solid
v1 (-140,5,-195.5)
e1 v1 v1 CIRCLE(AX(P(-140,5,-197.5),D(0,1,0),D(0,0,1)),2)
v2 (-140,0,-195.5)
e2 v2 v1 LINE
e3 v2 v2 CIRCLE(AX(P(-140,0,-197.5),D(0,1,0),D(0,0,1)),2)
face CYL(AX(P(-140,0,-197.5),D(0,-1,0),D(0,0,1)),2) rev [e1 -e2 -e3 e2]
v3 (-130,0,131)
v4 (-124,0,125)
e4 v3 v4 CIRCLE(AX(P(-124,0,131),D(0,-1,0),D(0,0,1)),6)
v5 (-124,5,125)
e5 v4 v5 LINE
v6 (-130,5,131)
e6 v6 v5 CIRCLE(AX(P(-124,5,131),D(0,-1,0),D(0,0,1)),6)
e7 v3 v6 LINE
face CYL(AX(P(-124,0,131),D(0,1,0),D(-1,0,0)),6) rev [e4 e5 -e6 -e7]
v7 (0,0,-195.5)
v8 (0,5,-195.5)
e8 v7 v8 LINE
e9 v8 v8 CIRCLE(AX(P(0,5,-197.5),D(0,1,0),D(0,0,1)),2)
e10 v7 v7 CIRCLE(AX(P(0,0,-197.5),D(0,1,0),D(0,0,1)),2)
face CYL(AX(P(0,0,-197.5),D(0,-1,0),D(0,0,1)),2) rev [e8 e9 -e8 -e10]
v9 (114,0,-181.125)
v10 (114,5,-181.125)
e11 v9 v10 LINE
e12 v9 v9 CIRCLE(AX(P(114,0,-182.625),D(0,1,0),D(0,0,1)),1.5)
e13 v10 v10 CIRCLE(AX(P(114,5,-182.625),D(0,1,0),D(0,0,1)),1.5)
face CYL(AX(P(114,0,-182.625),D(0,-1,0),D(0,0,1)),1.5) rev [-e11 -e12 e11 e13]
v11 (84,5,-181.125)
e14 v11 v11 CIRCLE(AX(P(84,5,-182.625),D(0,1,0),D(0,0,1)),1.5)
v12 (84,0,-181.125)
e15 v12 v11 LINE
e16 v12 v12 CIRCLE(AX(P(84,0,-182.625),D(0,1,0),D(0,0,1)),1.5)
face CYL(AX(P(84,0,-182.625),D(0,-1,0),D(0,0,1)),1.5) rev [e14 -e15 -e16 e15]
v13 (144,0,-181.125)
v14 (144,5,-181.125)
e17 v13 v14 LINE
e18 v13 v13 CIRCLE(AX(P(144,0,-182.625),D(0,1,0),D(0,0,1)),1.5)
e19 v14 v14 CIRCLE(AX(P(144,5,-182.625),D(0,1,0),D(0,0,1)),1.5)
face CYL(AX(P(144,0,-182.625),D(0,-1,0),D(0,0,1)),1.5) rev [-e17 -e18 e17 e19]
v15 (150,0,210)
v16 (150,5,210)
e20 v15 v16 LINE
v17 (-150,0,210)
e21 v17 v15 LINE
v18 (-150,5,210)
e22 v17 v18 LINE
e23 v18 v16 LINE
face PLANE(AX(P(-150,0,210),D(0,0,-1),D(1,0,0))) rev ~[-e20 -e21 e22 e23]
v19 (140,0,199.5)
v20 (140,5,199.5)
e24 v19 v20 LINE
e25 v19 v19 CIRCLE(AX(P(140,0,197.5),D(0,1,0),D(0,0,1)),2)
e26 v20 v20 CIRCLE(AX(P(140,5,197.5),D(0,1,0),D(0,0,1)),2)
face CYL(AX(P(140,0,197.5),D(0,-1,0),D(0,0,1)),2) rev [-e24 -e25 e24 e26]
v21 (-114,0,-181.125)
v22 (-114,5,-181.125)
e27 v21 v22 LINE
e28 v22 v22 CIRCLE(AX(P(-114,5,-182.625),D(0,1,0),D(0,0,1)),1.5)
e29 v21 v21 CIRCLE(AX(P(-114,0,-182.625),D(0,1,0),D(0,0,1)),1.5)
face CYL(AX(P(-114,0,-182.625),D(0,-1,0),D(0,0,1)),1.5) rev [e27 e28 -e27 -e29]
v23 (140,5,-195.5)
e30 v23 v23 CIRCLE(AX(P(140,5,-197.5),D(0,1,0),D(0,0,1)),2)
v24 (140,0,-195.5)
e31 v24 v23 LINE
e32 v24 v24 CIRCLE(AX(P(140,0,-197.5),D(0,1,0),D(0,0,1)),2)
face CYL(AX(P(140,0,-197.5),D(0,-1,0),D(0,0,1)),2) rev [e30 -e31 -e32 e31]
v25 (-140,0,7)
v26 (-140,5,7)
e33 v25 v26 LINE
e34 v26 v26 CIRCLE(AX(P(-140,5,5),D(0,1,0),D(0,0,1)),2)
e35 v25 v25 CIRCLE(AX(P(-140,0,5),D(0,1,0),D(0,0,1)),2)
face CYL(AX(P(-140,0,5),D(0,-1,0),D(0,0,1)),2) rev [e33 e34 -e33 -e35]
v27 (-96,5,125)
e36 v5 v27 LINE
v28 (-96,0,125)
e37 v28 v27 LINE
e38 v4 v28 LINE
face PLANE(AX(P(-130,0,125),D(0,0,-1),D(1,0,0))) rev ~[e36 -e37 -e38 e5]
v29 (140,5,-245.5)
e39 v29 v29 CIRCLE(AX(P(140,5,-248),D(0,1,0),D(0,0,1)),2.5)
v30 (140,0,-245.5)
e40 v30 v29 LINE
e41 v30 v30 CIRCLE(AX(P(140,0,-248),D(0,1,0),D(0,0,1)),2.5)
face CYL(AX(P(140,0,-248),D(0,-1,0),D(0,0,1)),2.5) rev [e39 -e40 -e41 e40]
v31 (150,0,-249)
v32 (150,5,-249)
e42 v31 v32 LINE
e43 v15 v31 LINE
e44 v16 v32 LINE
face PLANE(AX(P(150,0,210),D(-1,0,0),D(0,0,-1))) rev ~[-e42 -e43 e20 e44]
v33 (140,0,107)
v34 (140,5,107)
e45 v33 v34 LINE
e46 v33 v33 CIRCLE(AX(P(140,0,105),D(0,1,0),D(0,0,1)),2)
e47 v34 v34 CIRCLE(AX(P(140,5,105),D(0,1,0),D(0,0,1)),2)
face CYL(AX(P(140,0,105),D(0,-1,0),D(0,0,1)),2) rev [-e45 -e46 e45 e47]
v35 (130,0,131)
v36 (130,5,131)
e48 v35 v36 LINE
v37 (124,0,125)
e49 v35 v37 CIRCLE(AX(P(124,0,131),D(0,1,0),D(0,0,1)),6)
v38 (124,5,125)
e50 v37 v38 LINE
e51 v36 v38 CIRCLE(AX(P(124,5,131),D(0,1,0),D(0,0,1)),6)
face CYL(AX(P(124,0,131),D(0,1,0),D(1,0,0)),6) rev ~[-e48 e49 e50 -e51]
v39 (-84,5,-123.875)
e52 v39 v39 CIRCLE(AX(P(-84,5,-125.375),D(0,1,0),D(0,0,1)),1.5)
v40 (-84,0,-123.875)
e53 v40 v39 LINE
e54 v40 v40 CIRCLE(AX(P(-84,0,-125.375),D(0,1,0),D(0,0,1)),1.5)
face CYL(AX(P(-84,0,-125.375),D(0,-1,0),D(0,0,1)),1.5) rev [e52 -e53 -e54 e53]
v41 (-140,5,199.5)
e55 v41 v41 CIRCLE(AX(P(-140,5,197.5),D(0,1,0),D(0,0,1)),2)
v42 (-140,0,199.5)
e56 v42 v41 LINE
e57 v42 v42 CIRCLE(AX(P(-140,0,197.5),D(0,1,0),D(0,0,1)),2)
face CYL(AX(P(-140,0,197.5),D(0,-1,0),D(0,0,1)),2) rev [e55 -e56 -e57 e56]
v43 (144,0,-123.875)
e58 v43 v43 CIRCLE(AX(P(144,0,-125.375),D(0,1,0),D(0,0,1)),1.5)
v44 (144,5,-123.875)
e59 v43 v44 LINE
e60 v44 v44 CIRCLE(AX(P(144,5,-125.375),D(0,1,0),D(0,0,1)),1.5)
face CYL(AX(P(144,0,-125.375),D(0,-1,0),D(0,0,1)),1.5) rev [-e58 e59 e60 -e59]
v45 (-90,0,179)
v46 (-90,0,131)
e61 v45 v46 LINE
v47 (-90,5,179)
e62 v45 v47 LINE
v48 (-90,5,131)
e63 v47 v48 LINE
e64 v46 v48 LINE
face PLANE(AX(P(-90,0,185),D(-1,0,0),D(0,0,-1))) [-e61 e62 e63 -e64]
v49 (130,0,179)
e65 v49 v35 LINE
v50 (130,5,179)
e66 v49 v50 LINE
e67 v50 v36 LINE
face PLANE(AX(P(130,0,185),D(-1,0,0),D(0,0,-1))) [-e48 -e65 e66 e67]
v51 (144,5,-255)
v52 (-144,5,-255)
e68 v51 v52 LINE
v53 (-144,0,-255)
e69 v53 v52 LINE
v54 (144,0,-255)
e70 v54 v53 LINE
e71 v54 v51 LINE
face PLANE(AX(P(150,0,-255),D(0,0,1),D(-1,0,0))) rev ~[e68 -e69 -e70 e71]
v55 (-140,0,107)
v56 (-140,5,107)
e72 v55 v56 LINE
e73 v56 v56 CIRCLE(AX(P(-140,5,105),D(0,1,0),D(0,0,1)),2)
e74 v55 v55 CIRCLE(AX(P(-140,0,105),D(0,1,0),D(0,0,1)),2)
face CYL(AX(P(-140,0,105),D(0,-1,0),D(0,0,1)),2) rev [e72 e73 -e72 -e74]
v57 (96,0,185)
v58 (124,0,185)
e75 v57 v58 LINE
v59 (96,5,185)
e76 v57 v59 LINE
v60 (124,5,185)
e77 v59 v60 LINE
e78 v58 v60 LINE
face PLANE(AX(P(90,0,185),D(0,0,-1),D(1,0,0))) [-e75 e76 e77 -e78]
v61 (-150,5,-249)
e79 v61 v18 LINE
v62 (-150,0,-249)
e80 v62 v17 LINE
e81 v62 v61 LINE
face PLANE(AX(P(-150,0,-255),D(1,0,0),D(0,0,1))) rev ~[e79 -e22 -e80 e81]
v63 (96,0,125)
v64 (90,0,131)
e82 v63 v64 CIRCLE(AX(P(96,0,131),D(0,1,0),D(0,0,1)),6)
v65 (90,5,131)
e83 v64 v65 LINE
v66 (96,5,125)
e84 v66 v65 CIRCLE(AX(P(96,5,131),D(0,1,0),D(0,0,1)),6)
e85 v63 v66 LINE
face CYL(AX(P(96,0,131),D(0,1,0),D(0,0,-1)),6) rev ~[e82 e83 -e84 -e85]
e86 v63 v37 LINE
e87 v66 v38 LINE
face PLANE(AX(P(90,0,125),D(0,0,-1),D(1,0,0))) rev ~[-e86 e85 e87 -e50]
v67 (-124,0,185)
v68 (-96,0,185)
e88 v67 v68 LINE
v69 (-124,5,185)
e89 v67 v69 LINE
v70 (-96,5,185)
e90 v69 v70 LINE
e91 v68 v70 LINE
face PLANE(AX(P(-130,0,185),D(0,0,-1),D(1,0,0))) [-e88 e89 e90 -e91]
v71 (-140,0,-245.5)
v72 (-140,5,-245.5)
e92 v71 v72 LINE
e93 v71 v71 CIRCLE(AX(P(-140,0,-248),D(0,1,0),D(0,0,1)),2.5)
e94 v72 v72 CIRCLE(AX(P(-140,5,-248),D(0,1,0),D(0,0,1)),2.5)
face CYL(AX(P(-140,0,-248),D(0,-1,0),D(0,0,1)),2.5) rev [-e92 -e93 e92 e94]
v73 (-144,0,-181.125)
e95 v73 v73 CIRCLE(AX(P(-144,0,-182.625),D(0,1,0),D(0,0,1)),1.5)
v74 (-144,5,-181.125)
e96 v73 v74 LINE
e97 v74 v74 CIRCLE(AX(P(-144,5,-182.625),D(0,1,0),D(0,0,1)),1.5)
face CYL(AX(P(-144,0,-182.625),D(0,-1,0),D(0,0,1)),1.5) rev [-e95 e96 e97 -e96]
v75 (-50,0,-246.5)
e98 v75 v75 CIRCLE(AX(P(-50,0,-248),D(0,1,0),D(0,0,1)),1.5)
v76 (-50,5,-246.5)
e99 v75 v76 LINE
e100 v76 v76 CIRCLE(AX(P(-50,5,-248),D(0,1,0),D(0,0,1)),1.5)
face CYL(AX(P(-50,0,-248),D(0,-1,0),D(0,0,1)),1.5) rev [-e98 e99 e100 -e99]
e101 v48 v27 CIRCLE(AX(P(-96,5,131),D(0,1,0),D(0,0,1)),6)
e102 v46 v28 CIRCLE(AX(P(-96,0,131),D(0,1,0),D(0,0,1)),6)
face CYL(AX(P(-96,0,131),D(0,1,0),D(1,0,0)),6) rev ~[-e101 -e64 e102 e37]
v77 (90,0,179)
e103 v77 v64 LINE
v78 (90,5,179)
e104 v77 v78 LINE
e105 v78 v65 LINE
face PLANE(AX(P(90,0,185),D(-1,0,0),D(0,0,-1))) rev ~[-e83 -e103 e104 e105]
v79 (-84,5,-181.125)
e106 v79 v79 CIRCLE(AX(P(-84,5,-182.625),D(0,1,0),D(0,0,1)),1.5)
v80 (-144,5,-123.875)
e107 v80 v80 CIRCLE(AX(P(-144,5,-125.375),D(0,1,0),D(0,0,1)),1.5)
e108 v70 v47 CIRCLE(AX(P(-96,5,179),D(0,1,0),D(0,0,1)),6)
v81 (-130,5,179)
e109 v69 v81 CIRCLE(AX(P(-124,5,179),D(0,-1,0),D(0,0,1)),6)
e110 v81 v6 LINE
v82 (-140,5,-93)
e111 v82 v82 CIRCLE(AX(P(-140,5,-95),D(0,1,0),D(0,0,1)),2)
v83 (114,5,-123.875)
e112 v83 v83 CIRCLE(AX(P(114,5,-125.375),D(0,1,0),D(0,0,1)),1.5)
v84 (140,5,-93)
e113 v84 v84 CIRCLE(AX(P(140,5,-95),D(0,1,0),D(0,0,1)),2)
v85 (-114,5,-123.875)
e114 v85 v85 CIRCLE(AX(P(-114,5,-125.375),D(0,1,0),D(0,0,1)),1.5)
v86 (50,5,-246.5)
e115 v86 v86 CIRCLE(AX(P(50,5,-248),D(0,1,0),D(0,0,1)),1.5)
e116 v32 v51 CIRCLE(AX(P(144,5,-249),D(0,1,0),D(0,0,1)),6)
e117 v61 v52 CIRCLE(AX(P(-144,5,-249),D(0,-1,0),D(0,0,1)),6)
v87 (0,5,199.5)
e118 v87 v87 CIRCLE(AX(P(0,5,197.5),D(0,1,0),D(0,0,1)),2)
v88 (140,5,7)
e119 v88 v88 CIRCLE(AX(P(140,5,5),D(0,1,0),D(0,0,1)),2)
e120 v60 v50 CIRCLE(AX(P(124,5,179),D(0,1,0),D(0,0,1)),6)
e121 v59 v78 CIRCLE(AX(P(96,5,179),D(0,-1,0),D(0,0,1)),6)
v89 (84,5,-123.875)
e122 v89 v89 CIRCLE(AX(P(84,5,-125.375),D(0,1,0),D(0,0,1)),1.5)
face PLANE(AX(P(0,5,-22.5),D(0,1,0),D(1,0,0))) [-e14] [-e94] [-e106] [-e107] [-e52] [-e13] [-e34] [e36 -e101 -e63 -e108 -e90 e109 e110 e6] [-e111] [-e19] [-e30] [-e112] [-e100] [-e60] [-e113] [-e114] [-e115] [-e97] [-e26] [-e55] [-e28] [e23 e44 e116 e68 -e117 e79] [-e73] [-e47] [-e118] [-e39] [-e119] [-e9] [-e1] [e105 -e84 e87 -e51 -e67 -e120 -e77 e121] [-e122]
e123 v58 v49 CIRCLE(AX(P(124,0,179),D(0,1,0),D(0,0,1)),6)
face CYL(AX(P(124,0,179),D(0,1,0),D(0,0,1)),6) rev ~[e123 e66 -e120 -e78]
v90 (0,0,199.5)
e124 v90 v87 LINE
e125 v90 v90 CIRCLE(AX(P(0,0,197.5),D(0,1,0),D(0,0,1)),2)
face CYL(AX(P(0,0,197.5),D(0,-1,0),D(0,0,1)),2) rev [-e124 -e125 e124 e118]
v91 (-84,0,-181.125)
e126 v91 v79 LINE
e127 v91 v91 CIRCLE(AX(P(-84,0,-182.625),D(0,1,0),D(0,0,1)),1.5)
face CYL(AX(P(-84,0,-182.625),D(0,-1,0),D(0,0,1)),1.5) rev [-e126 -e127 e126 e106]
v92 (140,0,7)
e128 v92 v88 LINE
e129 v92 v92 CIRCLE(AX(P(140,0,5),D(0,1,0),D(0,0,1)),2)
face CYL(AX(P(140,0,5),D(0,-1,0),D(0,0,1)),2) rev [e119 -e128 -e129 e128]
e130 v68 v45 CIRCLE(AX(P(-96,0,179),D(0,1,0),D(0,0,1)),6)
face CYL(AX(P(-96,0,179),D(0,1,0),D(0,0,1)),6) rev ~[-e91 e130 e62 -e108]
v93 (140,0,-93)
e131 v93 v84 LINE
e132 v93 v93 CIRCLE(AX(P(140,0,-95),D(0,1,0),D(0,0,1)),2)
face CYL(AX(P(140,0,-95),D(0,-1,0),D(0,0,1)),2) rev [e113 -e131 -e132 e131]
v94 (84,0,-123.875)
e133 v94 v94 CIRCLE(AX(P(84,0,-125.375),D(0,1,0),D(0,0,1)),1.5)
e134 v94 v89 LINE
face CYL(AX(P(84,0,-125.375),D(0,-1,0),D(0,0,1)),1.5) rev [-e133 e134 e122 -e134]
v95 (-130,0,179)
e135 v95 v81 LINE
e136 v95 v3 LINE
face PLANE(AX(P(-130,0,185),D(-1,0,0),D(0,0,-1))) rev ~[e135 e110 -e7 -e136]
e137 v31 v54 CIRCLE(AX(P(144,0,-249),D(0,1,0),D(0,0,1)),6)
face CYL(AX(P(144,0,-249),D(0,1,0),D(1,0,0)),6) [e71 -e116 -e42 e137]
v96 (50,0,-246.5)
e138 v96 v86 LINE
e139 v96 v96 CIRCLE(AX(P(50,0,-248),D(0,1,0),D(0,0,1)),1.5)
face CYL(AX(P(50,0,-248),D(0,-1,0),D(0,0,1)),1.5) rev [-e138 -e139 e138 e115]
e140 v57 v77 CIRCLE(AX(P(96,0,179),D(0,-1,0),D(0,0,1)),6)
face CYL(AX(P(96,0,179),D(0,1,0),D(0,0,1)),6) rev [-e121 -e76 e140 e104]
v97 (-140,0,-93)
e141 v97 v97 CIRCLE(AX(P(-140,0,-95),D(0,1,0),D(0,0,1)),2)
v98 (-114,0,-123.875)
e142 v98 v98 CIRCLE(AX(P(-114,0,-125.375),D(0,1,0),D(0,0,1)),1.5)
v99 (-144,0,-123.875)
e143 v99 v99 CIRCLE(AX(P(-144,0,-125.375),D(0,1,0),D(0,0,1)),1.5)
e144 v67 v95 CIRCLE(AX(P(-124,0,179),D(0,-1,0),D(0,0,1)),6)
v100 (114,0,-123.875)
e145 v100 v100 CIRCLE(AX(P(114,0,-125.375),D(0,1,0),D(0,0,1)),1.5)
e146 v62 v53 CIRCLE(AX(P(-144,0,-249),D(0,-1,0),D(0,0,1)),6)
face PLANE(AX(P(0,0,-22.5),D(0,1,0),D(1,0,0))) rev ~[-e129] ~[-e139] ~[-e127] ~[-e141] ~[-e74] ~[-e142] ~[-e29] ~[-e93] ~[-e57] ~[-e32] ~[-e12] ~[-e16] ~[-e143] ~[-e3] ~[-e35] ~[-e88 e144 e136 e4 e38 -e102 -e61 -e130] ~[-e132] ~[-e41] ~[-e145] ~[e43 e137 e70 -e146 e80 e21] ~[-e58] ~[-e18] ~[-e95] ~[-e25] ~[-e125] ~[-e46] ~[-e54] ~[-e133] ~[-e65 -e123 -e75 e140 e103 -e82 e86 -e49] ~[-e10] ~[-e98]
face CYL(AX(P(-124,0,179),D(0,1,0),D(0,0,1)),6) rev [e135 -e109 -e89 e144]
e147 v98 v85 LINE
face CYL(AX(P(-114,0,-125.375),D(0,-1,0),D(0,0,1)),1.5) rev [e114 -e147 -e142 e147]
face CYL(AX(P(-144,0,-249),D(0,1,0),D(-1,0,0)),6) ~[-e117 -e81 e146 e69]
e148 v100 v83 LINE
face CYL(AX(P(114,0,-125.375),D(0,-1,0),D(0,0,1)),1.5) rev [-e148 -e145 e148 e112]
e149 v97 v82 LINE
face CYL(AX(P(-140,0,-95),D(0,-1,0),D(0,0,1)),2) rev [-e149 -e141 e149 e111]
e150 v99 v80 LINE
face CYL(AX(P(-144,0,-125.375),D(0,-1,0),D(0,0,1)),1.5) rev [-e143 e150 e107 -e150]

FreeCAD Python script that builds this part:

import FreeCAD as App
import Part
import Sketcher
Q = App.Units.Quantity


def edges_at(feature, points):
    """Names of the edges that pass closest to the given points."""
    edges = feature.Shape.Edges
    near = lambda p: min(range(len(edges)), key=lambda i: edges[i].distToShape(Part.Vertex(*p))[0])
    return sorted({f"Edge{near(p) + 1}" for p in points})

doc = App.newDocument("Part")
body = doc.addObject("PartDesign::Body", "Body")

# Sketch on XZ plane
sketch1 = doc.addObject("Sketcher::SketchObject", "Sketch")
body.addObject(sketch1)
sketch1.AttachmentSupport = (doc.XZ_Plane, [""])
sketch1.MapMode = "FlatFace"
sketch1.addGeometry([
    Part.LineSegment(App.Vector(-150, 210, 0), App.Vector(150, 210, 0)),  # 0
    Part.LineSegment(App.Vector(150, 210, 0), App.Vector(150, -255, 0)),  # 1
    Part.LineSegment(App.Vector(150, -255, 0), App.Vector(-150, -255, 0)),  # 2
    Part.LineSegment(App.Vector(-150, -255, 0), App.Vector(-150, 210, 0)),  # 3
    Part.Circle(App.Vector(-140, 197.5, 0), App.Vector(0, 0, 1), 2),  # 4
    Part.LineSegment(App.Vector(-90, 185, 0), App.Vector(-130, 185, 0)),  # 5
    Part.LineSegment(App.Vector(-130, 185, 0), App.Vector(-130, 125, 0)),  # 6
    Part.LineSegment(App.Vector(-130, 125, 0), App.Vector(-90, 125, 0)),  # 7
    Part.LineSegment(App.Vector(-90, 125, 0), App.Vector(-90, 185, 0)),  # 8
    Part.Circle(App.Vector(-140, 105, 0), App.Vector(0, 0, 1), 2),  # 9
    Part.Circle(App.Vector(-140, 5, 0), App.Vector(0, 0, 1), 2),  # 10
    Part.Circle(App.Vector(0, 197.5, 0), App.Vector(0, 0, 1), 2),  # 11
    Part.Circle(App.Vector(140, 197.5, 0), App.Vector(0, 0, 1), 2),  # 12
    Part.LineSegment(App.Vector(130, 185, 0), App.Vector(90, 185, 0)),  # 13
    Part.LineSegment(App.Vector(90, 185, 0), App.Vector(90, 125, 0)),  # 14
    Part.LineSegment(App.Vector(90, 125, 0), App.Vector(130, 125, 0)),  # 15
    Part.LineSegment(App.Vector(130, 125, 0), App.Vector(130, 185, 0)),  # 16
    Part.Circle(App.Vector(140, 105, 0), App.Vector(0, 0, 1), 2),  # 17
    Part.Circle(App.Vector(140, 5, 0), App.Vector(0, 0, 1), 2),  # 18
    Part.Circle(App.Vector(-140, -95, 0), App.Vector(0, 0, 1), 2),  # 19
    Part.Circle(App.Vector(-144, -125.375, 0), App.Vector(0, 0, 1), 1.5),  # 20
    Part.Circle(App.Vector(-114, -125.375, 0), App.Vector(0, 0, 1), 1.5),  # 21
    Part.Circle(App.Vector(-84, -125.375, 0), App.Vector(0, 0, 1), 1.5),  # 22
    Part.Circle(App.Vector(-144, -182.625, 0), App.Vector(0, 0, 1), 1.5),  # 23
    Part.Circle(App.Vector(-114, -182.625, 0), App.Vector(0, 0, 1), 1.5),  # 24
    Part.Circle(App.Vector(-84, -182.625, 0), App.Vector(0, 0, 1), 1.5),  # 25
    Part.Circle(App.Vector(-140, -197.5, 0), App.Vector(0, 0, 1), 2),  # 26
    Part.Circle(App.Vector(-140, -248, 0), App.Vector(0, 0, 1), 2.5),  # 27
    Part.Circle(App.Vector(-50, -248, 0), App.Vector(0, 0, 1), 1.5),  # 28
    Part.Circle(App.Vector(84, -125.375, 0), App.Vector(0, 0, 1), 1.5),  # 29
    Part.Circle(App.Vector(140, -95, 0), App.Vector(0, 0, 1), 2),  # 30
    Part.Circle(App.Vector(114, -125.375, 0), App.Vector(0, 0, 1), 1.5),  # 31
    Part.Circle(App.Vector(144, -125.375, 0), App.Vector(0, 0, 1), 1.5),  # 32
    Part.Circle(App.Vector(0, -197.5, 0), App.Vector(0, 0, 1), 2),  # 33
    Part.Circle(App.Vector(50, -248, 0), App.Vector(0, 0, 1), 1.5),  # 34
    Part.Circle(App.Vector(84, -182.625, 0), App.Vector(0, 0, 1), 1.5),  # 35
    Part.Circle(App.Vector(114, -182.625, 0), App.Vector(0, 0, 1), 1.5),  # 36
    Part.Circle(App.Vector(144, -182.625, 0), App.Vector(0, 0, 1), 1.5),  # 37
    Part.Circle(App.Vector(140, -197.5, 0), App.Vector(0, 0, 1), 2),  # 38
    Part.Circle(App.Vector(140, -248, 0), App.Vector(0, 0, 1), 2.5),  # 39
], False)
sketch1.addConstraint([
    Sketcher.Constraint("Coincident", 0, 2, 1, 1),
    Sketcher.Constraint("Coincident", 1, 2, 2, 1),
    Sketcher.Constraint("Coincident", 2, 2, 3, 1),
    Sketcher.Constraint("Coincident", 3, 2, 0, 1),
    Sketcher.Constraint("Coincident", 5, 2, 6, 1),
    Sketcher.Constraint("Coincident", 6, 2, 7, 1),
    Sketcher.Constraint("Coincident", 7, 2, 8, 1),
    Sketcher.Constraint("Coincident", 8, 2, 5, 1),
    Sketcher.Constraint("Coincident", 13, 2, 14, 1),
    Sketcher.Constraint("Coincident", 14, 2, 15, 1),
    Sketcher.Constraint("Coincident", 15, 2, 16, 1),
    Sketcher.Constraint("Coincident", 16, 2, 13, 1),
    Sketcher.Constraint("Horizontal", 0),
    Sketcher.Constraint("Vertical", 1),
    Sketcher.Constraint("Horizontal", 2),
    Sketcher.Constraint("Vertical", 3),
    Sketcher.Constraint("Horizontal", 5),
    Sketcher.Constraint("Vertical", 6),
    Sketcher.Constraint("Horizontal", 7),
    Sketcher.Constraint("Vertical", 8),
    Sketcher.Constraint("Horizontal", 13),
    Sketcher.Constraint("Vertical", 14),
    Sketcher.Constraint("Horizontal", 15),
    Sketcher.Constraint("Vertical", 16),
    Sketcher.Constraint("Equal", 4, 9),
    Sketcher.Constraint("Equal", 9, 10),
    Sketcher.Constraint("Equal", 10, 11),
    Sketcher.Constraint("Equal", 11, 12),
    Sketcher.Constraint("Equal", 12, 17),
    Sketcher.Constraint("Equal", 17, 18),
    Sketcher.Constraint("Equal", 18, 19),
    Sketcher.Constraint("Equal", 20, 21),
    Sketcher.Constraint("Equal", 21, 22),
    Sketcher.Constraint("Equal", 22, 23),
    Sketcher.Constraint("Equal", 23, 24),
    Sketcher.Constraint("Equal", 24, 25),
    Sketcher.Constraint("Equal", 19, 26),
    Sketcher.Constraint("Equal", 25, 28),
    Sketcher.Constraint("Equal", 28, 29),
    Sketcher.Constraint("Equal", 26, 30),
    Sketcher.Constraint("Equal", 29, 31),
    Sketcher.Constraint("Equal", 31, 32),
    Sketcher.Constraint("Equal", 30, 33),
    Sketcher.Constraint("Equal", 32, 34),
    Sketcher.Constraint("Equal", 34, 35),
    Sketcher.Constraint("Equal", 35, 36),
    Sketcher.Constraint("Equal", 36, 37),
    Sketcher.Constraint("Equal", 33, 38),
    Sketcher.Constraint("Equal", 27, 39),
    Sketcher.Constraint("Symmetric", 12, 3, 26, 3, -1, 1),
    Sketcher.Constraint("Symmetric", 11, 3, 33, 3, -1, 1),
    Sketcher.Constraint("Symmetric", 4, 3, 38, 3, -1, 1),
    Sketcher.Constraint("Symmetric", 4, 3, 12, 3, -2),
    Sketcher.Constraint("Symmetric", 9, 3, 17, 3, -2),
    Sketcher.Constraint("Symmetric", 10, 3, 18, 3, -2),
    Sketcher.Constraint("Symmetric", 22, 3, 29, 3, -2),
    Sketcher.Constraint("Symmetric", 19, 3, 30, 3, -2),
    Sketcher.Constraint("Symmetric", 21, 3, 31, 3, -2),
    Sketcher.Constraint("Symmetric", 20, 3, 32, 3, -2),
    Sketcher.Constraint("Symmetric", 28, 3, 34, 3, -2),
    Sketcher.Constraint("Symmetric", 25, 3, 35, 3, -2),
    Sketcher.Constraint("Symmetric", 24, 3, 36, 3, -2),
    Sketcher.Constraint("Symmetric", 23, 3, 37, 3, -2),
    Sketcher.Constraint("Symmetric", 27, 3, 39, 3, -2),
    Sketcher.Constraint("Symmetric", 8, 2, 13, 2, -2),
    Sketcher.Constraint("Symmetric", 6, 2, 15, 2, -2),
    Sketcher.Constraint("PointOnObject", 11, 3, -2),
    Sketcher.Constraint("Horizontal", 4, 3, 11, 3),
    Sketcher.Constraint("Horizontal", 20, 3, 21, 3),
    Sketcher.Constraint("Horizontal", 21, 3, 22, 3),
    Sketcher.Constraint("Horizontal", 23, 3, 24, 3),
    Sketcher.Constraint("Horizontal", 24, 3, 25, 3),
    Sketcher.Constraint("Horizontal", 27, 3, 28, 3),
    Sketcher.Constraint("Vertical", 4, 3, 9, 3),
    Sketcher.Constraint("Vertical", 9, 3, 10, 3),
    Sketcher.Constraint("Vertical", 10, 3, 19, 3),
    Sketcher.Constraint("Vertical", 20, 3, 23, 3),
    Sketcher.Constraint("Vertical", 21, 3, 24, 3),
    Sketcher.Constraint("Vertical", 22, 3, 25, 3),
    Sketcher.Constraint("Vertical", 26, 3, 27, 3),
    Sketcher.Constraint("Diameter", 4, Q("4 mm")),
    Sketcher.Constraint("Diameter", 20, Q("3 mm")),
    Sketcher.Constraint("Diameter", 27, Q("5 mm")),
    Sketcher.Constraint("DistanceX", 0, 1, 0, 2, Q("300 mm")),
    Sketcher.Constraint("DistanceX", 5, 2, 5, 1, Q("40 mm")),
    Sketcher.Constraint("DistanceY", 1, 2, 1, 1, Q("465 mm")),
    Sketcher.Constraint("DistanceY", 6, 2, 6, 1, Q("60 mm")),
    Sketcher.Constraint("DistanceX", 4, 3, -1, 1, Q("140 mm")),
    Sketcher.Constraint("DistanceY", -1, 1, 9, 3, Q("105 mm")),
    Sketcher.Constraint("DistanceY", -1, 1, 10, 3, Q("5 mm")),
    Sketcher.Constraint("DistanceY", 19, 3, -1, 1, Q("95 mm")),
    Sketcher.Constraint("DistanceX", 20, 3, -1, 1, Q("144 mm")),
    Sketcher.Constraint("DistanceX", 21, 3, -1, 1, Q("114 mm")),
    Sketcher.Constraint("DistanceX", 22, 3, -1, 1, Q("84 mm")),
    Sketcher.Constraint("DistanceY", 27, 3, -1, 1, Q("248 mm")),
    Sketcher.Constraint("DistanceX", 28, 3, -1, 1, Q("50 mm")),
    Sketcher.Constraint("DistanceX", -1, 1, 0, 2, Q("150 mm")),
    Sketcher.Constraint("DistanceY", -1, 1, 0, 2, Q("210 mm")),
    Sketcher.Constraint("DistanceX", 5, 2, -1, 1, Q("130 mm")),
    Sketcher.Constraint("DistanceY", -1, 1, 5, 2, Q("185 mm")),
    Sketcher.Constraint("DistanceY", -1, 1, 4, 3, Q("197.5 mm")),
    Sketcher.Constraint("DistanceY", 23, 3, 20, 3, Q("57.25 mm")),
    Sketcher.Constraint("DistanceY", 20, 3, -1, 1, Q("125.375 mm")),
])
pad1 = doc.addObject("PartDesign::Pad", "Pad")
body.addObject(pad1)
pad1.Profile = sketch1
pad1.Length = 5
pad1.Reversed = True
doc.recompute()

fillet = doc.addObject("PartDesign::Fillet", "Fillet")
body.addObject(fillet)
fillet.Base = (pad1, edges_at(pad1, [
    (130, 2.5, 185),
    (130, 2.5, 125),
    (90, 2.5, 125),
    (90, 2.5, 185),
    (-90, 2.5, 125),
    (-130, 2.5, 125),
    (-130, 2.5, 185),
    (-90, 2.5, 185),
    (-150, 2.5, -255),
    (150, 2.5, -255),
]))
fillet.Radius = 6

doc.recompute()
